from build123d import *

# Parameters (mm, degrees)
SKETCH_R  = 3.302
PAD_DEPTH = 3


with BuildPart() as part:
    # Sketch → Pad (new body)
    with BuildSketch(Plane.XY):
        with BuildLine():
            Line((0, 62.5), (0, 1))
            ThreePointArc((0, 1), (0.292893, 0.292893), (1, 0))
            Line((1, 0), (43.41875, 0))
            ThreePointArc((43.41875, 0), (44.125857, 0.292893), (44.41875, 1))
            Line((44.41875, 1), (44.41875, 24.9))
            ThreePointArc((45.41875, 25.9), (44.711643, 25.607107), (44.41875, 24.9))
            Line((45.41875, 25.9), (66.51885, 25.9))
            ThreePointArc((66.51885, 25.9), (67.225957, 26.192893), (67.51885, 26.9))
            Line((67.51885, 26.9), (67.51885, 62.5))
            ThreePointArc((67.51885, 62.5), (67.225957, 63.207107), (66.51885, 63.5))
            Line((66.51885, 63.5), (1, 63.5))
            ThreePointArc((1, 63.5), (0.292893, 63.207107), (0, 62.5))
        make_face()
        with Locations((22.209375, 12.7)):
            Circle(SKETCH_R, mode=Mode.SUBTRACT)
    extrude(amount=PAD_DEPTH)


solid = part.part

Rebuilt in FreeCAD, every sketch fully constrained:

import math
import FreeCAD as App
import Part
import Sketcher

doc = App.newDocument("Part")
params = doc.addObject("Spreadsheet::Sheet", "Params")
for row, (alias, value) in enumerate([
    ("sketch1_radius", "0.999999 mm"),
    ("sketch1_height", "61.5 mm"),
    ("sketch1_height2", "23.9 mm"),
    ("pad1_length", "3 mm"),
], start=1):
    params.set(f"A{row}", alias)
    params.set(f"B{row}", "=" + value)
    params.setAlias(f"B{row}", alias)

body = doc.addObject("PartDesign::Body", "Body")

# Sketch on XY plane
sketch1 = body.newObject("Sketcher::SketchObject", "Sketch")
sketch1.AttachmentSupport = (doc.getObject("XY_Plane"), [""])
sketch1.MapMode = "FlatFace"
sketch1.addGeometry([
    Part.LineSegment(App.Vector(0, 62.5, 0), App.Vector(0, 1, 0)),  # 0
    Part.ArcOfCircle(Part.Circle(App.Vector(1, 1, 0), App.Vector(0, 0, 1), 1), math.radians(180), math.radians(270)),  # 1
    Part.LineSegment(App.Vector(1, 0, 0), App.Vector(43.4, 0, 0)),  # 2
    Part.ArcOfCircle(Part.Circle(App.Vector(43.4, 1, 0), App.Vector(0, 0, 1), 1), math.radians(-90), math.radians(0)),  # 3
    Part.LineSegment(App.Vector(44.4, 1, 0), App.Vector(44.4, 24.9, 0)),  # 4
    Part.ArcOfCircle(Part.Circle(App.Vector(45.4, 24.9, 0), App.Vector(0, 0, 1), 1), math.radians(90), math.radians(180)),  # 5
    Part.LineSegment(App.Vector(45.4, 25.9, 0), App.Vector(66.5, 25.9, 0)),  # 6
    Part.ArcOfCircle(Part.Circle(App.Vector(66.5, 26.9, 0), App.Vector(0, 0, 1), 1), math.radians(-90), math.radians(0)),  # 7
    Part.LineSegment(App.Vector(67.5, 26.9, 0), App.Vector(67.5, 62.5, 0)),  # 8
    Part.ArcOfCircle(Part.Circle(App.Vector(66.5, 62.5, 0), App.Vector(0, 0, 1), 1), math.radians(0), math.radians(90)),  # 9
    Part.LineSegment(App.Vector(66.5, 63.5, 0), App.Vector(1, 63.5, 0)),  # 10
    Part.ArcOfCircle(Part.Circle(App.Vector(1, 62.5, 0), App.Vector(0, 0, 1), 1), math.radians(90), math.radians(180)),  # 11
    Part.Circle(App.Vector(22.2, 12.7, 0), App.Vector(0, 0, 1), 3.3),  # 12
], False)
sketch1.addConstraint([
    Sketcher.Constraint("Tangent", 0, 2, 1, 1),
    Sketcher.Constraint("Tangent", 1, 2, 2, 1),
    Sketcher.Constraint("Tangent", 2, 2, 3, 1),
    Sketcher.Constraint("Tangent", 3, 2, 4, 1),
    Sketcher.Constraint("Tangent", 4, 2, 5, 2),
    Sketcher.Constraint("Tangent", 5, 1, 6, 1),
    Sketcher.Constraint("Tangent", 6, 2, 7, 1),
    Sketcher.Constraint("Tangent", 7, 2, 8, 1),
    Sketcher.Constraint("Tangent", 8, 2, 9, 1),
    Sketcher.Constraint("Tangent", 9, 2, 10, 1),
    Sketcher.Constraint("Tangent", 10, 2, 11, 1),
    Sketcher.Constraint("Tangent", 11, 2, 0, 1),
    Sketcher.Constraint("Vertical", 0),
    Sketcher.Constraint("Horizontal", 2),
    Sketcher.Constraint("Vertical", 4),
    Sketcher.Constraint("Horizontal", 6),
    Sketcher.Constraint("Vertical", 8),
    Sketcher.Constraint("Horizontal", 10),
    Sketcher.Constraint("Equal", 1, 3),
    Sketcher.Constraint("Equal", 3, 5),
    Sketcher.Constraint("Equal", 5, 7),
    Sketcher.Constraint("Equal", 7, 9),
    Sketcher.Constraint("Equal", 9, 11),
    Sketcher.Constraint("PointOnObject", 0, 2, -2),
    Sketcher.Constraint("PointOnObject", 1, 2, -1),
    Sketcher.Constraint("Radius", 1, 0.999999),
    Sketcher.Constraint("Diameter", 12, 6.604),
    Sketcher.Constraint("DistanceY", 0, 2, 0, 1, 61.5),
    Sketcher.Constraint("DistanceY", 4, 1, 4, 2, 23.9),
    Sketcher.Constraint("DistanceY", -1, 1, 12, 3, 12.7),
    Sketcher.Constraint("DistanceX", 6, 1, 6, 2, 21.1001),
    Sketcher.Constraint("DistanceX", 2, 1, 2, 2, 42.41875),
    Sketcher.Constraint("DistanceX", -1, 1, 12, 3, 22.209375),
])
sketch1.setExpression("Constraints[25]", "Params.sketch1_radius")
sketch1.setExpression("Constraints[27]", "Params.sketch1_height")
sketch1.setExpression("Constraints[28]", "Params.sketch1_height2")
pad1 = body.newObject("PartDesign::Pad", "Pad")
pad1.Profile = sketch1
pad1.setExpression("Length", "Params.pad1_length")

doc.recompute()
